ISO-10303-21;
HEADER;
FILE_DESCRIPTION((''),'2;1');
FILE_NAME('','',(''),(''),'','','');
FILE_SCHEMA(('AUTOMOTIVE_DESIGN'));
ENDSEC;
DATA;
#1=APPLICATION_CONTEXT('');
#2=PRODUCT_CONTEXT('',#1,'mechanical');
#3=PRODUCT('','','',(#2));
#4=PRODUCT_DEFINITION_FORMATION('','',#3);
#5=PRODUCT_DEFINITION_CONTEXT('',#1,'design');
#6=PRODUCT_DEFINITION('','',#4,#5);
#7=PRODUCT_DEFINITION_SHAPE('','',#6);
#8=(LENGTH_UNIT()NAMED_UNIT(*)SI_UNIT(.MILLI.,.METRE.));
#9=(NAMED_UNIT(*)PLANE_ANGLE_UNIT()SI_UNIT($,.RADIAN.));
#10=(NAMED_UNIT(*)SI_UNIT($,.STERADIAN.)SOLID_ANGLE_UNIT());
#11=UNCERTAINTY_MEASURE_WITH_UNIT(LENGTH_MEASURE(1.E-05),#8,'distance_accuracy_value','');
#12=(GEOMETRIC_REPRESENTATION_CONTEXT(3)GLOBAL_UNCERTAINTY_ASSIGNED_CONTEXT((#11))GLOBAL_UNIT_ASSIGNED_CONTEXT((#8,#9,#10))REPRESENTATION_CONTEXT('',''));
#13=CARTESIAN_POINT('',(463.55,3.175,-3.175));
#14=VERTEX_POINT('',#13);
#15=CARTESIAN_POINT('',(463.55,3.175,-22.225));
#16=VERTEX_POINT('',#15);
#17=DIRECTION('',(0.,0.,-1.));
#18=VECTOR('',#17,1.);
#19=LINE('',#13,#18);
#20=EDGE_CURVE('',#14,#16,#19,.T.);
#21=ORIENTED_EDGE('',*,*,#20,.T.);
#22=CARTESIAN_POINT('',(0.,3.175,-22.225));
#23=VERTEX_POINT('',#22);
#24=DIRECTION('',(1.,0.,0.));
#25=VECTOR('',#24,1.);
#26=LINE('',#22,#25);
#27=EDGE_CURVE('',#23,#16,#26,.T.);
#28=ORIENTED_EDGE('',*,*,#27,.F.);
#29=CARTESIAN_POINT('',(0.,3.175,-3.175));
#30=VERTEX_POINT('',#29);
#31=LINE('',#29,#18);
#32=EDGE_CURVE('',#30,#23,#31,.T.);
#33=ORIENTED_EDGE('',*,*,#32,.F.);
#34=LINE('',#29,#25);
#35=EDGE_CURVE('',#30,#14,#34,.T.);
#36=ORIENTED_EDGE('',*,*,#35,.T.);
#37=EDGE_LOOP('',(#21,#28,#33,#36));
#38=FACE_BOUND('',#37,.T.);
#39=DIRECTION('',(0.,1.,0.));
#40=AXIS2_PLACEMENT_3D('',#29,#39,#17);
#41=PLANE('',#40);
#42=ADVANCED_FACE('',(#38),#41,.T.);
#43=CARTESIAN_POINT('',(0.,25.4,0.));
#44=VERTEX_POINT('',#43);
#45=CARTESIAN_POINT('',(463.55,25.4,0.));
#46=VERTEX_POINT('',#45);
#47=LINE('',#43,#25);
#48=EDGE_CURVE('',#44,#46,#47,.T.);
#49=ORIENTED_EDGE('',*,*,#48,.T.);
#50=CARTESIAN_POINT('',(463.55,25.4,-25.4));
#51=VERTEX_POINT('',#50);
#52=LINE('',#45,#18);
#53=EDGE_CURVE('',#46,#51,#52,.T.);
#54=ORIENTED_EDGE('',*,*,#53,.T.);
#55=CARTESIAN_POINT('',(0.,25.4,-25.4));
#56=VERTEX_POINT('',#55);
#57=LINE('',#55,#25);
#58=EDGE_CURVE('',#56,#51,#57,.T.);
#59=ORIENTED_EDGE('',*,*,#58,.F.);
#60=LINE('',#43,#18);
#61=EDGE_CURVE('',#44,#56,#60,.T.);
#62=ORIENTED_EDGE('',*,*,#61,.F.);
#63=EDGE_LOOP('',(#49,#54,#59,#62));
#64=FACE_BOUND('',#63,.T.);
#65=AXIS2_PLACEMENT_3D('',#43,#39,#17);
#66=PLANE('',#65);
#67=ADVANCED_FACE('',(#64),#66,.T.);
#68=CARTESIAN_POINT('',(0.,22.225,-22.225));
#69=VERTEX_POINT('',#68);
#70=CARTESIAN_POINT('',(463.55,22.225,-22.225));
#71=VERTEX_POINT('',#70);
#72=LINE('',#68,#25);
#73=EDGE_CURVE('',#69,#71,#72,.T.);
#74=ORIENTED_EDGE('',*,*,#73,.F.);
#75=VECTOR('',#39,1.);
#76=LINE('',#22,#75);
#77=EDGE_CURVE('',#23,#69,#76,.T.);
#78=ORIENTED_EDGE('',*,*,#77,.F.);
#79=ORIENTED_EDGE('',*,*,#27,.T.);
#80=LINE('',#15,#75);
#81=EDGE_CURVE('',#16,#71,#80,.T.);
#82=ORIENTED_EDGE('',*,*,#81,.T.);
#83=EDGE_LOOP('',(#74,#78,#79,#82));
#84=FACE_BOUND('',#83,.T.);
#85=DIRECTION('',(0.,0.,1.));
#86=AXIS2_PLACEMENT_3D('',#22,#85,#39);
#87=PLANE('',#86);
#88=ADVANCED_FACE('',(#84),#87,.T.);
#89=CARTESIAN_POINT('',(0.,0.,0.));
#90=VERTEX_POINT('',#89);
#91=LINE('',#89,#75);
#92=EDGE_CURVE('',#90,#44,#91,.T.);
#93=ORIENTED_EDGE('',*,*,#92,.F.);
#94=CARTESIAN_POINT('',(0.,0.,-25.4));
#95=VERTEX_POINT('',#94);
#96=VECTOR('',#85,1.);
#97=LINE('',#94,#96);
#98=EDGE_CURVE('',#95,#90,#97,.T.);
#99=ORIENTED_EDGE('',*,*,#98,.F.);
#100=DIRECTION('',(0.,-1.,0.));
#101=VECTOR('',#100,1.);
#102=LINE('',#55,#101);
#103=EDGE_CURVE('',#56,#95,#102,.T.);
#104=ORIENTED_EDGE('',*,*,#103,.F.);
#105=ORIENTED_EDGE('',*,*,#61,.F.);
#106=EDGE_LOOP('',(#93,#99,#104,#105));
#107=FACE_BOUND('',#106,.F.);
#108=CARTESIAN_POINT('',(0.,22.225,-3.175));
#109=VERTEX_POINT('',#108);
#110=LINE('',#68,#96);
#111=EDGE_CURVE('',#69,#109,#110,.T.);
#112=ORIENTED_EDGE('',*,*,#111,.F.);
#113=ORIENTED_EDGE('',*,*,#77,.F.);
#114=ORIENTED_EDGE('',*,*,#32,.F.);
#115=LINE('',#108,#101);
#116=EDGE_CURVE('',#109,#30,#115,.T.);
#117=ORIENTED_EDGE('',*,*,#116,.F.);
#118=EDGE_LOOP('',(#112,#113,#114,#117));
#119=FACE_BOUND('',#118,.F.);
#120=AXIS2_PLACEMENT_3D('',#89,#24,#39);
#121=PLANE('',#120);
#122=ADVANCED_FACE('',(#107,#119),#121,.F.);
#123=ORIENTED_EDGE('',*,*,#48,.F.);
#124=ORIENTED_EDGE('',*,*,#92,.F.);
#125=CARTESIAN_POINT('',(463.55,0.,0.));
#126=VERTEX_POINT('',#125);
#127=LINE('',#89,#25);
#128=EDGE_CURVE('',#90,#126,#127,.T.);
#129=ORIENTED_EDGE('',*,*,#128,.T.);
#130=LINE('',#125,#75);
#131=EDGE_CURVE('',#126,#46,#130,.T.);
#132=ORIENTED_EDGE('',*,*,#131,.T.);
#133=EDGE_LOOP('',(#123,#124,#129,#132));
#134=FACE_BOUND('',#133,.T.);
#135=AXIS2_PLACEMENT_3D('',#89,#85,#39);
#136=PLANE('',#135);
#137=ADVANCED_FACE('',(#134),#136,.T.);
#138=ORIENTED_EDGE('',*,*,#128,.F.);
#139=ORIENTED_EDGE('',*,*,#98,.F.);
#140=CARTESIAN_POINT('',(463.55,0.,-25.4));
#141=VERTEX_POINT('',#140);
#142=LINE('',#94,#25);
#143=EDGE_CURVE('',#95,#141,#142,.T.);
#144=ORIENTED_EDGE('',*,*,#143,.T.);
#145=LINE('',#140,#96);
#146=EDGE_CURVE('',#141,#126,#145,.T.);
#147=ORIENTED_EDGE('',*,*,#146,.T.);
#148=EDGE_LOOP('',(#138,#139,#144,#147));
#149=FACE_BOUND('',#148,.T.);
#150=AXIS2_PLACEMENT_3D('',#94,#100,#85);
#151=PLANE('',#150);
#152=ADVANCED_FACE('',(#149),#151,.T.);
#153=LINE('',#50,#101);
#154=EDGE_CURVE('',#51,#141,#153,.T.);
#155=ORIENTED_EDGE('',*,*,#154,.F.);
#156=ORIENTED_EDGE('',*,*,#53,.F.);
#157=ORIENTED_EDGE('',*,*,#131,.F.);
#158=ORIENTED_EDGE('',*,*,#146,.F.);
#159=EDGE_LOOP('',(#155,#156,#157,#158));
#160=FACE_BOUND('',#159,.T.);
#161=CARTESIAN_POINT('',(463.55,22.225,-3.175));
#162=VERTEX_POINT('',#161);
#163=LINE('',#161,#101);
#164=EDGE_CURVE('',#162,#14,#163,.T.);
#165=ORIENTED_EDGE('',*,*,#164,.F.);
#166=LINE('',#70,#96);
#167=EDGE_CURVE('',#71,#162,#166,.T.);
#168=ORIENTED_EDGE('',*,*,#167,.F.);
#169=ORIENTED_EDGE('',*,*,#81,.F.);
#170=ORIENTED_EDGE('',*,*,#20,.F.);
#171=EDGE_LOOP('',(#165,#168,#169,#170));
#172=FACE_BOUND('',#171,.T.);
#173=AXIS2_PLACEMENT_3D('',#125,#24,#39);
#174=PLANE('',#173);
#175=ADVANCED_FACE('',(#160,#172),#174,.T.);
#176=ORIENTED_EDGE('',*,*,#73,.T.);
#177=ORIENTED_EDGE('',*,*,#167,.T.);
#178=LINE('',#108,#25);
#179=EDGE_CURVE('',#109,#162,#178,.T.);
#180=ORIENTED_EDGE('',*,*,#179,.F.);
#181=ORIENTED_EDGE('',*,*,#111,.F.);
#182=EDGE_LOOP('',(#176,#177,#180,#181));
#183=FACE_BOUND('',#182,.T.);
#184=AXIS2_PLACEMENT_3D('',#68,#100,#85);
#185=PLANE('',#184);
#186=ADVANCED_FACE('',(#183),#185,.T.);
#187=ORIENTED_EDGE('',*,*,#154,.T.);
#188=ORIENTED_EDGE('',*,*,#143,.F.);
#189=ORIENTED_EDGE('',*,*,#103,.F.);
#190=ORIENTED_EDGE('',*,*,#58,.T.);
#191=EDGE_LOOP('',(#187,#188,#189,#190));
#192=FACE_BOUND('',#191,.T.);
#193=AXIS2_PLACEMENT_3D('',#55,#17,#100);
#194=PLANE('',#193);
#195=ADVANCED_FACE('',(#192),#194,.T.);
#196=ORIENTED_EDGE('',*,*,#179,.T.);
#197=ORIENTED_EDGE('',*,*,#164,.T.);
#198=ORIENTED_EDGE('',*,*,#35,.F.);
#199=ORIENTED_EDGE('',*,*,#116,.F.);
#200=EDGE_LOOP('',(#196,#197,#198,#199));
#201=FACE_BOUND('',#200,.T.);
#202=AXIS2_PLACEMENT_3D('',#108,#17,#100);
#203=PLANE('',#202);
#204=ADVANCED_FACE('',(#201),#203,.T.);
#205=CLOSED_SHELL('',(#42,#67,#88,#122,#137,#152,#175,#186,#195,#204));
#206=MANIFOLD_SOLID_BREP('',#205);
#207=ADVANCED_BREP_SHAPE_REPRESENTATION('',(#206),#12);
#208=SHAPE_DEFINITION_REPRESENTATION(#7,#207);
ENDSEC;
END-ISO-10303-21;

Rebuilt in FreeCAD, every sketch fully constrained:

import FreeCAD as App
import Part
import Sketcher

V = App.Vector
Q = App.Units.Quantity


def add_polygon(sketch, points):
    """Adds a closed chain of lines whose ends are joined by coincident constraints."""
    first, n = sketch.GeometryCount, len(points)
    for a, b in zip(points, points[1:] + points[:1]):
        sketch.addGeometry(Part.LineSegment(App.Vector(*a, 0), App.Vector(*b, 0)), False)
    for i in range(n):
        sketch.addConstraint(Sketcher.Constraint("Coincident", first + i, 2, first + (i + 1) % n, 1))

doc = App.newDocument("Part")
params = doc.addObject("Spreadsheet::Sheet", "Params")
for row, (alias, value) in enumerate([
    ("sketch1_width", "1 in"),
    ("pad1_length", "18.25 in"),
], start=1):
    params.set(f"A{row}", alias)
    params.set(f"B{row}", "=" + value)
    params.setAlias(f"B{row}", alias)

body = doc.addObject("PartDesign::Body", "Body")

# Sketch on YZ plane
sketch1 = body.newObject("Sketcher::SketchObject", "Sketch")
sketch1.AttachmentSupport = (doc.getObject("YZ_Plane"), [""])
sketch1.MapMode = "FlatFace"
add_polygon(sketch1, [(25, 0), (0, 0), (0, -25), (25, -25)])  # lines 0-3
add_polygon(sketch1, [(22, -3), (22, -22), (3, -22), (3, -3)])  # lines 4-7
sketch1.addConstraint([
    Sketcher.Constraint("Horizontal", 0),
    Sketcher.Constraint("Vertical", 1),
    Sketcher.Constraint("Horizontal", 2),
    Sketcher.Constraint("Vertical", 3),
    Sketcher.Constraint("Vertical", 4),
    Sketcher.Constraint("Horizontal", 5),
    Sketcher.Constraint("Vertical", 6),
    Sketcher.Constraint("Horizontal", 7),
    Sketcher.Constraint("Coincident", 0, 2, -1, 1),
    Sketcher.Constraint("Equal", 2, 1),
    Sketcher.Constraint("Equal", 7, 4),
    Sketcher.Constraint("DistanceX", 0, 2, 0, 1, Q("1 in")),
    Sketcher.Constraint("DistanceX", -1, 1, 5, 2, Q("0.125 in")),
    Sketcher.Constraint("DistanceY", 6, 2, -1, 1, Q("0.125 in")),
    Sketcher.Constraint("DistanceX", 4, 2, 2, 2, Q("0.125 in")),
])
sketch1.setExpression("Constraints[19]", "Params.sketch1_width")
pad1 = body.newObject("PartDesign::Pad", "Pad")
pad1.Profile = sketch1
pad1.setExpression("Length", "Params.pad1_length")

doc.recompute()
